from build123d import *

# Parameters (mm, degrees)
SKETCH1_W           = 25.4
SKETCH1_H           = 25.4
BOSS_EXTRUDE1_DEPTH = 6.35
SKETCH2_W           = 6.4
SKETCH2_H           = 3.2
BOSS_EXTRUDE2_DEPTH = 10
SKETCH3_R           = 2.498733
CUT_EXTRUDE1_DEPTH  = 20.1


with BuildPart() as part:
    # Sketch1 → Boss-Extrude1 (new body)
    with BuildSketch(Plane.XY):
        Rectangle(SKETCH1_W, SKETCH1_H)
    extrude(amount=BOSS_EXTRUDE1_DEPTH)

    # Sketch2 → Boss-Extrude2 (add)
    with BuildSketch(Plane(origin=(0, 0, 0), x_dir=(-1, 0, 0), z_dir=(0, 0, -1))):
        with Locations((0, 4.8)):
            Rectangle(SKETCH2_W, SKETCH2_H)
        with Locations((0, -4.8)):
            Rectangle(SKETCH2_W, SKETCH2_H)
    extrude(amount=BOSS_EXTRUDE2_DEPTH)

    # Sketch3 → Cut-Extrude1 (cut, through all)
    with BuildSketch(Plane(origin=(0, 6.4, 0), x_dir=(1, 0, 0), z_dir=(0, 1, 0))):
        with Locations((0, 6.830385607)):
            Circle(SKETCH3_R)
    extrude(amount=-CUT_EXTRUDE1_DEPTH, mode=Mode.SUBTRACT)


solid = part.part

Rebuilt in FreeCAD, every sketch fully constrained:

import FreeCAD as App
import Part
import Sketcher

V = App.Vector
Q = App.Units.Quantity


def add_polygon(sketch, points):
    """Adds a closed chain of lines whose ends are joined by coincident constraints."""
    first, n = sketch.GeometryCount, len(points)
    for a, b in zip(points, points[1:] + points[:1]):
        sketch.addGeometry(Part.LineSegment(App.Vector(*a, 0), App.Vector(*b, 0)), False)
    for i in range(n):
        sketch.addConstraint(Sketcher.Constraint("Coincident", first + i, 2, first + (i + 1) % n, 1))

doc = App.newDocument("Part")
body = doc.addObject("PartDesign::Body", "Body")

# Sketch on XY plane
sketch1 = doc.addObject("Sketcher::SketchObject", "Sketch")
body.addObject(sketch1)
sketch1.AttachmentSupport = (doc.XY_Plane, [""])
sketch1.MapMode = "FlatFace"
add_polygon(sketch1, [(-12.7, 12.7), (-12.7, -12.7), (12.7, -12.7), (12.7, 12.7)])  # lines 0-3
sketch1.addConstraint([
    Sketcher.Constraint("Vertical", 0),
    Sketcher.Constraint("Horizontal", 1),
    Sketcher.Constraint("Vertical", 2),
    Sketcher.Constraint("Horizontal", 3),
    Sketcher.Constraint("Symmetric", 0, 2, 2, 2, -1, 1),
    Sketcher.Constraint("Equal", 3, 0),
    Sketcher.Constraint("DistanceX", 1, 1, 1, 2, Q("25.4 mm")),
])
pad1 = doc.addObject("PartDesign::Pad", "Pad")
body.addObject(pad1)
pad1.Profile = sketch1
pad1.Length = 6.35

# Sketch on XY plane
sketch2 = doc.addObject("Sketcher::SketchObject", "Sketch001")
body.addObject(sketch2)
sketch2.AttachmentSupport = (doc.XY_Plane, [""])
sketch2.MapMode = "FlatFace"
add_polygon(sketch2, [(3.2, 6.4), (3.2, 3.2), (-3.2, 3.2), (-3.2, 6.4)])  # lines 0-3
add_polygon(sketch2, [(3.2, -3.2), (3.2, -6.4), (-3.2, -6.4), (-3.2, -3.2)])  # lines 4-7
sketch2.addConstraint([
    Sketcher.Constraint("Vertical", 0),
    Sketcher.Constraint("Horizontal", 1),
    Sketcher.Constraint("Vertical", 2),
    Sketcher.Constraint("Horizontal", 3),
    Sketcher.Constraint("Vertical", 4),
    Sketcher.Constraint("Horizontal", 5),
    Sketcher.Constraint("Vertical", 6),
    Sketcher.Constraint("Horizontal", 7),
    Sketcher.Constraint("Symmetric", 2, 2, 4, 2, -1, 1),
    Sketcher.Constraint("Symmetric", 0, 2, 6, 2, -1, 1),
    Sketcher.Constraint("Vertical", 3, 2, 4, 2),
    Sketcher.Constraint("DistanceX", 1, 2, 1, 1, Q("6.4 mm")),
    Sketcher.Constraint("DistanceY", 0, 2, 0, 1, Q("3.2 mm")),
    Sketcher.Constraint("DistanceY", -1, 1, 0, 2, Q("3.2 mm")),
])
pad2 = doc.addObject("PartDesign::Pad", "Pad001")
body.addObject(pad2)
pad2.Profile = sketch2
pad2.Length = 10
pad2.Reversed = True

# Sketch on XZ plane
sketch3 = doc.addObject("Sketcher::SketchObject", "Sketch002")
body.addObject(sketch3)
sketch3.AttachmentSupport = (doc.XZ_Plane, [""])
sketch3.MapMode = "FlatFace"
sketch3.AttachmentOffset = App.Placement(V(0, 0, -6.4), App.Rotation())
sketch3.addGeometry(Part.Circle(V(0, -6.830386, 0), V(0, 0, 1), 2.498733), False)
sketch3.addConstraint([
    Sketcher.Constraint("PointOnObject", 0, 3, -2),
    Sketcher.Constraint("Diameter", 0, Q("4.997466 mm")),
    Sketcher.Constraint("DistanceY", 0, 3, -1, 1, Q("6.830386 mm")),
])
pocket1 = doc.addObject("PartDesign::Pocket", "Pocket")
body.addObject(pocket1)
pocket1.Profile = sketch3
pocket1.Type = "ThroughAll"
pocket1.Reversed = True

doc.recompute()
